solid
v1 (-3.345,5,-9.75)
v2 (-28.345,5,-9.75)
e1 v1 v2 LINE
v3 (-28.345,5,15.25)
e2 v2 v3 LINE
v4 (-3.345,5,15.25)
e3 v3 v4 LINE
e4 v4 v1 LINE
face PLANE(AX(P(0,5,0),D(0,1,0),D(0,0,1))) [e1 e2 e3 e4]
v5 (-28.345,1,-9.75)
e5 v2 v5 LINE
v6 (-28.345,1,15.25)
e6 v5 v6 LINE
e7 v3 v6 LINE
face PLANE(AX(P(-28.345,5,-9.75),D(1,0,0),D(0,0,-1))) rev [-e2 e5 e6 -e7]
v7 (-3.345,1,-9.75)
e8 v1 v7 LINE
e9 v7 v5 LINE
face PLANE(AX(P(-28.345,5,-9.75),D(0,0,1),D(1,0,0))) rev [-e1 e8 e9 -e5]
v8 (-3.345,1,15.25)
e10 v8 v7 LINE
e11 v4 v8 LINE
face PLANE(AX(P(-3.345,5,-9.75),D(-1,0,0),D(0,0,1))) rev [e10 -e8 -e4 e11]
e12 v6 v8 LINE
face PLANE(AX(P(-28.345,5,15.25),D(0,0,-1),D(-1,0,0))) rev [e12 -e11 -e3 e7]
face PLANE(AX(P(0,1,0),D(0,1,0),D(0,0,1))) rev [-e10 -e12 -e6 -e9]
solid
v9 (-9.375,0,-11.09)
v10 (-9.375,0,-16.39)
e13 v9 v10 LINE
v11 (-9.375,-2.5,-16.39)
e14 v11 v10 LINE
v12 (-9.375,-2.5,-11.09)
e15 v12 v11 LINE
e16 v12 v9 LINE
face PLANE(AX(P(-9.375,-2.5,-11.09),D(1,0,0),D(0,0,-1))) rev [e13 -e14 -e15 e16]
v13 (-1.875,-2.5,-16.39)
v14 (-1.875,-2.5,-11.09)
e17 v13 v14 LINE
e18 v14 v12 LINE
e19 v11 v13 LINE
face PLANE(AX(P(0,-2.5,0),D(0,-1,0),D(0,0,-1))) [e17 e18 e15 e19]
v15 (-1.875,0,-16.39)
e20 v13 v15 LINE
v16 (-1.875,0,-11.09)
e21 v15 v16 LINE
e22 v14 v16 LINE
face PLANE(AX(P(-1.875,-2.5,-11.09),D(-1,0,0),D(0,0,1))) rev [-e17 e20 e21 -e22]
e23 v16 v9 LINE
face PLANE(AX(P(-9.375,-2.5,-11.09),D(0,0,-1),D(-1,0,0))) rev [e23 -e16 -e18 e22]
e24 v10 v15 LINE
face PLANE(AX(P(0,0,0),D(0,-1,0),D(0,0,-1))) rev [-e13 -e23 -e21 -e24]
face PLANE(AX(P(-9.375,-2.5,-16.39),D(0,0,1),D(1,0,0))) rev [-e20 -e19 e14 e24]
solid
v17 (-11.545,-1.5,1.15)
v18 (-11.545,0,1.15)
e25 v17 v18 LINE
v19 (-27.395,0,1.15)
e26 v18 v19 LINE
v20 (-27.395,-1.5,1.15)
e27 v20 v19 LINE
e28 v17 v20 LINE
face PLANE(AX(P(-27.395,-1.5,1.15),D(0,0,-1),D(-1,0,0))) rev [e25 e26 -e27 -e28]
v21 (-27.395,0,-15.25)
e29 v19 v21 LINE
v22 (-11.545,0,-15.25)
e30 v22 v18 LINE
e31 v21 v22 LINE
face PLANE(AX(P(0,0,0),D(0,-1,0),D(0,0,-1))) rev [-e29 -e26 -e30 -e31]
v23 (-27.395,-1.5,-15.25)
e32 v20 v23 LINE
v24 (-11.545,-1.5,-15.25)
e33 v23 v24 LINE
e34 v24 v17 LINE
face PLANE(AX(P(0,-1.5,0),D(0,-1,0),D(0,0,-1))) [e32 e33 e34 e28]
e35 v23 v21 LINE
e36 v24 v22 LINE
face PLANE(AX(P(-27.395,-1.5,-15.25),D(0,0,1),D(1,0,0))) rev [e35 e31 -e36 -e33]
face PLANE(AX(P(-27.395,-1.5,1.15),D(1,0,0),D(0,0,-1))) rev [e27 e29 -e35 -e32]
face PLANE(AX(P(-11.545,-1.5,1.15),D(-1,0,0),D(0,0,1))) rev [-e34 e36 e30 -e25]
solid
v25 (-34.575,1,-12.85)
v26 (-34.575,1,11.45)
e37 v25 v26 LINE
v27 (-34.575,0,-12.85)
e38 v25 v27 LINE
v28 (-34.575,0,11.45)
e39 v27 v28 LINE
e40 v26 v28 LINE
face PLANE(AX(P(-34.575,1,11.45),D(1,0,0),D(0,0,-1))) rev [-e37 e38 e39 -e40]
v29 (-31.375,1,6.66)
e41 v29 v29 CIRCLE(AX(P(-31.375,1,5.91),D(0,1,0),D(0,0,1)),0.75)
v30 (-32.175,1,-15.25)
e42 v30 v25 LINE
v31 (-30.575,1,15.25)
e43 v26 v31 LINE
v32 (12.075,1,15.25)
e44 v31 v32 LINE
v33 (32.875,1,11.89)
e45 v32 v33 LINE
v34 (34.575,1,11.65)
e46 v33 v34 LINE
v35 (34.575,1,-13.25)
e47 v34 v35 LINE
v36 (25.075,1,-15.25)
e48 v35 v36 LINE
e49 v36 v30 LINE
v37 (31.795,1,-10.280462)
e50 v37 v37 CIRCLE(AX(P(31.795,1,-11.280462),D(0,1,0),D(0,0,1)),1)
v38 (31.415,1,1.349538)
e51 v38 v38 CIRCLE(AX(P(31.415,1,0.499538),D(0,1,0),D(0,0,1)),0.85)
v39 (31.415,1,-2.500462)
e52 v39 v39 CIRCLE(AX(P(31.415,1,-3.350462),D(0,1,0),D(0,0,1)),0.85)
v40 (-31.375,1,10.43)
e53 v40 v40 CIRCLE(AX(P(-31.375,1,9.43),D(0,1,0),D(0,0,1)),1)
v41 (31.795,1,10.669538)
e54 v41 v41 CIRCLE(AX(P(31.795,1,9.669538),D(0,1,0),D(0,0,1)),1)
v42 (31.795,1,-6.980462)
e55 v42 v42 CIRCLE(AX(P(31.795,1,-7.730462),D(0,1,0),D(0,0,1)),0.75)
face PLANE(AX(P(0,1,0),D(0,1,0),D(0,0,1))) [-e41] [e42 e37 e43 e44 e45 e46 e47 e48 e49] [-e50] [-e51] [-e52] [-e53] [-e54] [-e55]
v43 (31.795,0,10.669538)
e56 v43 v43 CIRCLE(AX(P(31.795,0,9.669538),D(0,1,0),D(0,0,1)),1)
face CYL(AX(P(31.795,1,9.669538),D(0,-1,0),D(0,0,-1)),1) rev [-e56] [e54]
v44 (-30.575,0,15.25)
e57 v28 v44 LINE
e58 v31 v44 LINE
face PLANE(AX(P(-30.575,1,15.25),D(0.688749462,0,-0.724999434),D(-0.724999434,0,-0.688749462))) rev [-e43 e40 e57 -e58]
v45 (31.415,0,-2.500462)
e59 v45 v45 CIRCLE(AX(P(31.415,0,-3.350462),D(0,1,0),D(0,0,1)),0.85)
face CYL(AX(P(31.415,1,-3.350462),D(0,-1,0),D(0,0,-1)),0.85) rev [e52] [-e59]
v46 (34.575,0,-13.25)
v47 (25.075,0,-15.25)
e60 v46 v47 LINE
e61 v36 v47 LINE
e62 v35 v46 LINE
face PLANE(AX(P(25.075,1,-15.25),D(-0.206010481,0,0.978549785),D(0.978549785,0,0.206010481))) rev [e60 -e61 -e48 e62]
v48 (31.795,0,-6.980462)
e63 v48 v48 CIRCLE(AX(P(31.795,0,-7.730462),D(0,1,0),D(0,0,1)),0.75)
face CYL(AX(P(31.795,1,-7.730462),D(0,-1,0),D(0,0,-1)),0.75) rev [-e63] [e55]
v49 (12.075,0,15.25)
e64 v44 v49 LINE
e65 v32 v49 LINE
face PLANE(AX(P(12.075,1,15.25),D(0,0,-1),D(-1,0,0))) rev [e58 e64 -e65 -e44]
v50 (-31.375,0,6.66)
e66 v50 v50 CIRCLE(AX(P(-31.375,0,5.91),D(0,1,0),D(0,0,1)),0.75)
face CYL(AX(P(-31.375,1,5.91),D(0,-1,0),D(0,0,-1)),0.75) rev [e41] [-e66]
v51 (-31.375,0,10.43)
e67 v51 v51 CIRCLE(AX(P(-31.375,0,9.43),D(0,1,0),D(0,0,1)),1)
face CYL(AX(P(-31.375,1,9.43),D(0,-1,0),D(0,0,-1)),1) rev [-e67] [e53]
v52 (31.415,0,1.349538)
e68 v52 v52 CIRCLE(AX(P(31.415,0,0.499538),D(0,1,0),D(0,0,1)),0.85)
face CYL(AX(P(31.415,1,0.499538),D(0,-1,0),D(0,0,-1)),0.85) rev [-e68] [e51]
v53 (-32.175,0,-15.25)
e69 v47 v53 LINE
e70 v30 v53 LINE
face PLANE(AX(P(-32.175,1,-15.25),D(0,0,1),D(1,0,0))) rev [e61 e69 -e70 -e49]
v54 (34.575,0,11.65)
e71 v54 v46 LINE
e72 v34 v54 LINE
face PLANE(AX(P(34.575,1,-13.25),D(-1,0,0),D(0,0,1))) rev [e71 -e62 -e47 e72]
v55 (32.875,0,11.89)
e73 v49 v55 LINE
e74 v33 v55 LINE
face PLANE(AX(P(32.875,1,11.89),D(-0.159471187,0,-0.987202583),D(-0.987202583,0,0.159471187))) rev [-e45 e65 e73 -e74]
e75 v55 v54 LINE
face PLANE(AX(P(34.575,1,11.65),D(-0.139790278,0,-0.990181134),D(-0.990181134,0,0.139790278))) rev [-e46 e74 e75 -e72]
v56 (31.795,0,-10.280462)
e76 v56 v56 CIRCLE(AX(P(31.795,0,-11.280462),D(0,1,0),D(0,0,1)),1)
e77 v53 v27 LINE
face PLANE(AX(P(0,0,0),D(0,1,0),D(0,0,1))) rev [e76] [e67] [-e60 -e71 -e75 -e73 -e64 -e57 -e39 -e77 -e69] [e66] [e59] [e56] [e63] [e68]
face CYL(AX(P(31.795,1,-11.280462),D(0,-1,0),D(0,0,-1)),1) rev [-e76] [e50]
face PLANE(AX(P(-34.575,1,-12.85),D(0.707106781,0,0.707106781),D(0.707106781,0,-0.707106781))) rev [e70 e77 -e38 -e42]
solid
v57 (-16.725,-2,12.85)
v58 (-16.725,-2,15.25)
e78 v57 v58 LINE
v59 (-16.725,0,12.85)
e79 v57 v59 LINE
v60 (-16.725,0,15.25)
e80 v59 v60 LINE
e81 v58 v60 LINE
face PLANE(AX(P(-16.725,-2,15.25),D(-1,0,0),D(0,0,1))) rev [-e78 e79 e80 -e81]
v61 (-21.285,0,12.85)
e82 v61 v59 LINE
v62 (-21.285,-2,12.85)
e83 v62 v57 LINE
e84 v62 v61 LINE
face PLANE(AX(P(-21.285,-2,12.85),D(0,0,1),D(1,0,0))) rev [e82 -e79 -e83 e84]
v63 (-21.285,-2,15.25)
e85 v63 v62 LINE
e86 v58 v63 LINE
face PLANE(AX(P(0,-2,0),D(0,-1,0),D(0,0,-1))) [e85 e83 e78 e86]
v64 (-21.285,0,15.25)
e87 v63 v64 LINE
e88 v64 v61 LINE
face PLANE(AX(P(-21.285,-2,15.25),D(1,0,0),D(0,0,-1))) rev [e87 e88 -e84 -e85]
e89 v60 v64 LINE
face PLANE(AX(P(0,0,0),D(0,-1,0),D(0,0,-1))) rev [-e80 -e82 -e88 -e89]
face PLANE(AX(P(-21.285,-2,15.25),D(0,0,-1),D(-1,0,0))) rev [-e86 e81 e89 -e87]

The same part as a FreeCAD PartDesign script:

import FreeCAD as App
import Part
import Sketcher
Q = App.Units.Quantity

doc = App.newDocument("Part")
body = doc.addObject("PartDesign::Body", "Body")

# Sketch on XZ plane
sketch1 = doc.addObject("Sketcher::SketchObject", "Sketch")
body.addObject(sketch1)
sketch1.AttachmentSupport = (doc.XZ_Plane, [""])
sketch1.MapMode = "FlatFace"
sketch1.addGeometry([
    Part.LineSegment(App.Vector(25.1, -15.2, 0), App.Vector(-32.2, -15.2, 0)),  # 0
    Part.LineSegment(App.Vector(-32.2, -15.2, 0), App.Vector(-34.6, -12.8, 0)),  # 1
    Part.LineSegment(App.Vector(-34.6, -12.8, 0), App.Vector(-34.6, 11.4, 0)),  # 2
    Part.LineSegment(App.Vector(-34.6, 11.4, 0), App.Vector(-30.6, 15.2, 0)),  # 3
    Part.LineSegment(App.Vector(-30.6, 15.2, 0), App.Vector(12.1, 15.2, 0)),  # 4
    Part.LineSegment(App.Vector(12.1, 15.2, 0), App.Vector(32.9, 11.9, 0)),  # 5
    Part.LineSegment(App.Vector(32.9, 11.9, 0), App.Vector(34.6, 11.7, 0)),  # 6
    Part.LineSegment(App.Vector(34.6, 11.7, 0), App.Vector(34.6, -13.2, 0)),  # 7
    Part.LineSegment(App.Vector(34.6, -13.2, 0), App.Vector(25.1, -15.2, 0)),  # 8
    Part.Circle(App.Vector(31.8, 9.7, 0), App.Vector(0, 0, 1), 1),  # 9
    Part.Circle(App.Vector(31.4, 0.5, 0), App.Vector(0, 0, 1), 0.8),  # 10
    Part.Circle(App.Vector(-31.4, 9.4, 0), App.Vector(0, 0, 1), 1),  # 11
    Part.Circle(App.Vector(-31.4, 5.9, 0), App.Vector(0, 0, 1), 0.8),  # 12
    Part.Circle(App.Vector(31.4, -3.4, 0), App.Vector(0, 0, 1), 0.8),  # 13
    Part.Circle(App.Vector(31.8, -7.7, 0), App.Vector(0, 0, 1), 0.8),  # 14
    Part.Circle(App.Vector(31.8, -11.3, 0), App.Vector(0, 0, 1), 1),  # 15
], False)
sketch1.addConstraint([
    Sketcher.Constraint("Coincident", 0, 2, 1, 1),
    Sketcher.Constraint("Coincident", 1, 2, 2, 1),
    Sketcher.Constraint("Coincident", 2, 2, 3, 1),
    Sketcher.Constraint("Coincident", 3, 2, 4, 1),
    Sketcher.Constraint("Coincident", 4, 2, 5, 1),
    Sketcher.Constraint("Coincident", 5, 2, 6, 1),
    Sketcher.Constraint("Coincident", 6, 2, 7, 1),
    Sketcher.Constraint("Coincident", 7, 2, 8, 1),
    Sketcher.Constraint("Coincident", 8, 2, 0, 1),
    Sketcher.Constraint("Horizontal", 0),
    Sketcher.Constraint("Vertical", 2),
    Sketcher.Constraint("Horizontal", 4),
    Sketcher.Constraint("Vertical", 7),
    Sketcher.Constraint("Equal", 9, 11),
    Sketcher.Constraint("Equal", 10, 13),
    Sketcher.Constraint("Equal", 12, 14),
    Sketcher.Constraint("Equal", 11, 15),
    Sketcher.Constraint("Vertical", 11, 3, 12, 3),
    Sketcher.Constraint("Vertical", 10, 3, 13, 3),
    Sketcher.Constraint("Vertical", 9, 3, 14, 3),
    Sketcher.Constraint("Vertical", 14, 3, 15, 3),
    Sketcher.Constraint("Diameter", 9, 2.0),
    Sketcher.Constraint("Diameter", 10, 1.7),
    Sketcher.Constraint("Diameter", 12, 1.5),
    Sketcher.Constraint("Angle", 1, Q("135 deg")),
    Sketcher.Constraint("DistanceY", 2, 1, 2, 2, 24.3),
    Sketcher.Constraint("DistanceY", 7, 2, 7, 1, 24.9),
    Sketcher.Constraint("DistanceX", 2, 2, 3, 2, 4.0),
    Sketcher.Constraint("DistanceY", 8, 2, 7, 2, 2.0),
    Sketcher.Constraint("DistanceX", 0, 2, 0, 1, 57.25),
    Sketcher.Constraint("DistanceX", 4, 1, 4, 2, 42.65),
    Sketcher.Constraint("DistanceY", 14, 3, 9, 3, 17.4),
    Sketcher.Constraint("DistanceX", 0, 2, 12, 3, 0.8),
    Sketcher.Constraint("DistanceX", 1, 2, 0, 2, 2.4),
    Sketcher.Constraint("DistanceY", 2, 2, 3, 2, 3.8),
    Sketcher.Constraint("DistanceX", 4, 2, 5, 2, 20.8),
    Sketcher.Constraint("DistanceX", 5, 2, 6, 2, 1.7),
    Sketcher.Constraint("DistanceY", -1, 1, 11, 3, 9.43),
    Sketcher.Constraint("DistanceY", -1, 1, 12, 3, 5.91),
    Sketcher.Constraint("DistanceY", 0, 2, -1, 1, 15.25),
    Sketcher.Constraint("DistanceY", -1, 1, 5, 2, 11.89),
    Sketcher.Constraint("DistanceX", 10, 3, 9, 3, 0.38),
    Sketcher.Constraint("DistanceY", 10, 3, 9, 3, 9.17),
    Sketcher.Constraint("DistanceX", 11, 3, 9, 3, 63.17),
    Sketcher.Constraint("DistanceY", 13, 3, 10, 3, 3.85),
    Sketcher.Constraint("DistanceY", 15, 3, 14, 3, 3.55),
    Sketcher.Constraint("DistanceX", -1, 1, 9, 3, 31.795),
    Sketcher.Constraint("DistanceY", -1, 1, 9, 3, 9.669538),
])
pad1 = doc.addObject("PartDesign::Pad", "Pad")
body.addObject(pad1)
pad1.Profile = sketch1
pad1.Length = 1
pad1.Reversed = True
body2 = doc.addObject("PartDesign::Body", "Body001")

# Sketch on XZ plane
sketch2 = doc.addObject("Sketcher::SketchObject", "Sketch001")
body2.addObject(sketch2)
sketch2.AttachmentSupport = (doc.getObject("XZ_Plane001"), [""])
sketch2.MapMode = "FlatFace"
sketch2.AttachmentOffset = App.Placement(App.Vector(0, 0, -1), App.Rotation())
sketch2.addGeometry([
    Part.LineSegment(App.Vector(-28, -10, 0), App.Vector(-28, 15, 0)),
    Part.LineSegment(App.Vector(-28, 15, 0), App.Vector(-3, 15, 0)),
    Part.LineSegment(App.Vector(-3, 15, 0), App.Vector(-3, -10, 0)),
    Part.LineSegment(App.Vector(-3, -10, 0), App.Vector(-28, -10, 0)),
], False)
sketch2.addConstraint([
    Sketcher.Constraint("Coincident", 0, 2, 1, 1),
    Sketcher.Constraint("Coincident", 1, 2, 2, 1),
    Sketcher.Constraint("Coincident", 2, 2, 3, 1),
    Sketcher.Constraint("Coincident", 3, 2, 0, 1),
    Sketcher.Constraint("Vertical", 0),
    Sketcher.Constraint("Horizontal", 1),
    Sketcher.Constraint("Vertical", 2),
    Sketcher.Constraint("Horizontal", 3),
    Sketcher.Constraint("Equal", 3, 0),
    Sketcher.Constraint("DistanceX", 1, 1, 1, 2, 25.0),
    Sketcher.Constraint("DistanceY", -1, 1, 0, 2, 15.25),
    Sketcher.Constraint("DistanceX", 0, 2, -1, 1, 28.345),
])
pad2 = doc.addObject("PartDesign::Pad", "Pad001")
body2.addObject(pad2)
pad2.Profile = sketch2
pad2.Length = 4
pad2.Reversed = True
body3 = doc.addObject("PartDesign::Body", "Body002")

# Sketch on XZ plane
sketch3 = doc.addObject("Sketcher::SketchObject", "Sketch002")
body3.addObject(sketch3)
sketch3.AttachmentSupport = (doc.getObject("XZ_Plane002"), [""])
sketch3.MapMode = "FlatFace"
sketch3.addGeometry([
    Part.LineSegment(App.Vector(-12, -15, 0), App.Vector(-12, 1, 0)),
    Part.LineSegment(App.Vector(-12, 1, 0), App.Vector(-27, 1, 0)),
    Part.LineSegment(App.Vector(-27, 1, 0), App.Vector(-27, -15, 0)),
    Part.LineSegment(App.Vector(-27, -15, 0), App.Vector(-12, -15, 0)),
], False)
sketch3.addConstraint([
    Sketcher.Constraint("Coincident", 0, 2, 1, 1),
    Sketcher.Constraint("Coincident", 1, 2, 2, 1),
    Sketcher.Constraint("Coincident", 2, 2, 3, 1),
    Sketcher.Constraint("Coincident", 3, 2, 0, 1),
    Sketcher.Constraint("Vertical", 0),
    Sketcher.Constraint("Horizontal", 1),
    Sketcher.Constraint("Vertical", 2),
    Sketcher.Constraint("Horizontal", 3),
    Sketcher.Constraint("DistanceY", 0, 1, 0, 2, 16.4),
    Sketcher.Constraint("DistanceX", 1, 2, 1, 1, 15.85),
    Sketcher.Constraint("DistanceY", -1, 1, 0, 2, 1.15),
    Sketcher.Constraint("DistanceX", 0, 2, -1, 1, 11.545),
])
pad3 = doc.addObject("PartDesign::Pad", "Pad002")
body3.addObject(pad3)
pad3.Profile = sketch3
pad3.Length = 1.5
body4 = doc.addObject("PartDesign::Body", "Body003")

# Sketch on XZ plane
sketch4 = doc.addObject("Sketcher::SketchObject", "Sketch003")
body4.addObject(sketch4)
sketch4.AttachmentSupport = (doc.getObject("XZ_Plane003"), [""])
sketch4.MapMode = "FlatFace"
sketch4.addGeometry([
    Part.LineSegment(App.Vector(-9, -11, 0), App.Vector(-9, -16, 0)),
    Part.LineSegment(App.Vector(-9, -16, 0), App.Vector(-2, -16, 0)),
    Part.LineSegment(App.Vector(-2, -16, 0), App.Vector(-2, -11, 0)),
    Part.LineSegment(App.Vector(-2, -11, 0), App.Vector(-9, -11, 0)),
], False)
sketch4.addConstraint([
    Sketcher.Constraint("Coincident", 0, 2, 1, 1),
    Sketcher.Constraint("Coincident", 1, 2, 2, 1),
    Sketcher.Constraint("Coincident", 2, 2, 3, 1),
    Sketcher.Constraint("Coincident", 3, 2, 0, 1),
    Sketcher.Constraint("Vertical", 0),
    Sketcher.Constraint("Horizontal", 1),
    Sketcher.Constraint("Vertical", 2),
    Sketcher.Constraint("Horizontal", 3),
    Sketcher.Constraint("DistanceX", 1, 1, 1, 2, 7.5),
    Sketcher.Constraint("DistanceY", 0, 2, 0, 1, 5.3),
    Sketcher.Constraint("DistanceY", 0, 2, -1, 1, 16.39),
    Sketcher.Constraint("DistanceX", 0, 2, -1, 1, 9.375),
])
pad4 = doc.addObject("PartDesign::Pad", "Pad003")
body4.addObject(pad4)
pad4.Profile = sketch4
pad4.Length = 2.5
body5 = doc.addObject("PartDesign::Body", "Body004")

# Sketch on XZ plane
sketch5 = doc.addObject("Sketcher::SketchObject", "Sketch004")
body5.addObject(sketch5)
sketch5.AttachmentSupport = (doc.getObject("XZ_Plane004"), [""])
sketch5.MapMode = "FlatFace"
sketch5.addGeometry([
    Part.LineSegment(App.Vector(-21.3, 15.2, 0), App.Vector(-21.3, 12.8, 0)),
    Part.LineSegment(App.Vector(-21.3, 12.8, 0), App.Vector(-16.7, 12.8, 0)),
    Part.LineSegment(App.Vector(-16.7, 12.8, 0), App.Vector(-16.7, 15.2, 0)),
    Part.LineSegment(App.Vector(-16.7, 15.2, 0), App.Vector(-21.3, 15.2, 0)),
], False)
sketch5.addConstraint([
    Sketcher.Constraint("Coincident", 0, 2, 1, 1),
    Sketcher.Constraint("Coincident", 1, 2, 2, 1),
    Sketcher.Constraint("Coincident", 2, 2, 3, 1),
    Sketcher.Constraint("Coincident", 3, 2, 0, 1),
    Sketcher.Constraint("Vertical", 0),
    Sketcher.Constraint("Horizontal", 1),
    Sketcher.Constraint("Vertical", 2),
    Sketcher.Constraint("Horizontal", 3),
    Sketcher.Constraint("DistanceY", 0, 2, 0, 1, 2.4),
    Sketcher.Constraint("DistanceX", 1, 1, 1, 2, 4.56),
    Sketcher.Constraint("DistanceY", -1, 1, 0, 2, 12.85),
    Sketcher.Constraint("DistanceX", 0, 2, -1, 1, 21.285),
])
pad5 = doc.addObject("PartDesign::Pad", "Pad004")
body5.addObject(pad5)
pad5.Profile = sketch5
pad5.Length = 2

doc.recompute()
